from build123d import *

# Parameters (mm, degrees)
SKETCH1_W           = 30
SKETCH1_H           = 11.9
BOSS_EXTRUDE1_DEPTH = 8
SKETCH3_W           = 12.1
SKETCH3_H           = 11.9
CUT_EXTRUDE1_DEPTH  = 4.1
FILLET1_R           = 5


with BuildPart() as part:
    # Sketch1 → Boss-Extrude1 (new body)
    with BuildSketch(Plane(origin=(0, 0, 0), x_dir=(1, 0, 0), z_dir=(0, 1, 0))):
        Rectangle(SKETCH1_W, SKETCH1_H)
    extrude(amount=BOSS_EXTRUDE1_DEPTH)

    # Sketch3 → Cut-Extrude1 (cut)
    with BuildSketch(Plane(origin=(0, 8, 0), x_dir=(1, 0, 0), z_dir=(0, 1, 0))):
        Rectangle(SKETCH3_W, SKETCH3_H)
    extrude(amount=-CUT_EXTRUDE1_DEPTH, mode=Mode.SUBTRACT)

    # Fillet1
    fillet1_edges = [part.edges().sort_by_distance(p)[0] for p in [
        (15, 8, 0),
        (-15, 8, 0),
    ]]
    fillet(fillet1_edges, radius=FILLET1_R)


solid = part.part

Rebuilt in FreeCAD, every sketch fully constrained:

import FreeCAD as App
import Part
import Sketcher
Q = App.Units.Quantity


def edges_at(feature, points):
    """Names of the edges that pass closest to the given points."""
    edges = feature.Shape.Edges
    near = lambda p: min(range(len(edges)), key=lambda i: edges[i].distToShape(Part.Vertex(*p))[0])
    return sorted({f"Edge{near(p) + 1}" for p in points})


def add_polygon(sketch, points):
    """Adds a closed chain of lines whose ends are joined by coincident constraints."""
    first, n = sketch.GeometryCount, len(points)
    for a, b in zip(points, points[1:] + points[:1]):
        sketch.addGeometry(Part.LineSegment(App.Vector(*a, 0), App.Vector(*b, 0)), False)
    for i in range(n):
        sketch.addConstraint(Sketcher.Constraint("Coincident", first + i, 2, first + (i + 1) % n, 1))

doc = App.newDocument("Part")
body = doc.addObject("PartDesign::Body", "Body")

# Sketch on XZ plane
sketch1 = doc.addObject("Sketcher::SketchObject", "Sketch")
body.addObject(sketch1)
sketch1.AttachmentSupport = (doc.XZ_Plane, [""])
sketch1.MapMode = "FlatFace"
add_polygon(sketch1, [(-15, -6), (-15, 6), (15, 6), (15, -6)])  # lines 0-3
sketch1.addConstraint([
    Sketcher.Constraint("Vertical", 0),
    Sketcher.Constraint("Horizontal", 1),
    Sketcher.Constraint("Vertical", 2),
    Sketcher.Constraint("Horizontal", 3),
    Sketcher.Constraint("Symmetric", 0, 2, 2, 2, -1, 1),
    Sketcher.Constraint("DistanceX", 1, 1, 1, 2, Q("30 mm")),
    Sketcher.Constraint("DistanceY", 0, 1, 0, 2, Q("11.9 mm")),
])
pad1 = doc.addObject("PartDesign::Pad", "Pad")
body.addObject(pad1)
pad1.Profile = sketch1
pad1.Length = 8
pad1.Reversed = True

# Sketch on XZ plane
sketch2 = doc.addObject("Sketcher::SketchObject", "Sketch001")
body.addObject(sketch2)
sketch2.AttachmentSupport = (doc.XZ_Plane, [""])
sketch2.MapMode = "FlatFace"
sketch2.AttachmentOffset = App.Placement(App.Vector(0, 0, -8), App.Rotation())
add_polygon(sketch2, [(-6, -6), (-6, 6), (6, 6), (6, -6)])  # lines 0-3
sketch2.addConstraint([
    Sketcher.Constraint("Vertical", 0),
    Sketcher.Constraint("Horizontal", 1),
    Sketcher.Constraint("Vertical", 2),
    Sketcher.Constraint("Horizontal", 3),
    Sketcher.Constraint("Symmetric", 0, 2, 2, 2, -1, 1),
    Sketcher.Constraint("DistanceX", 1, 1, 1, 2, Q("12.1 mm")),
    Sketcher.Constraint("DistanceY", 0, 1, 0, 2, Q("11.9 mm")),
])
pocket1 = doc.addObject("PartDesign::Pocket", "Pocket")
body.addObject(pocket1)
pocket1.Profile = sketch2
pocket1.Length = 4.1
pocket1.Reversed = True
doc.recompute()

fillet = doc.addObject("PartDesign::Fillet", "Fillet")
body.addObject(fillet)
fillet.Base = (pocket1, edges_at(pocket1, [(15, 8, 0), (-15, 8, 0)]))
fillet.Radius = 5

doc.recompute()
